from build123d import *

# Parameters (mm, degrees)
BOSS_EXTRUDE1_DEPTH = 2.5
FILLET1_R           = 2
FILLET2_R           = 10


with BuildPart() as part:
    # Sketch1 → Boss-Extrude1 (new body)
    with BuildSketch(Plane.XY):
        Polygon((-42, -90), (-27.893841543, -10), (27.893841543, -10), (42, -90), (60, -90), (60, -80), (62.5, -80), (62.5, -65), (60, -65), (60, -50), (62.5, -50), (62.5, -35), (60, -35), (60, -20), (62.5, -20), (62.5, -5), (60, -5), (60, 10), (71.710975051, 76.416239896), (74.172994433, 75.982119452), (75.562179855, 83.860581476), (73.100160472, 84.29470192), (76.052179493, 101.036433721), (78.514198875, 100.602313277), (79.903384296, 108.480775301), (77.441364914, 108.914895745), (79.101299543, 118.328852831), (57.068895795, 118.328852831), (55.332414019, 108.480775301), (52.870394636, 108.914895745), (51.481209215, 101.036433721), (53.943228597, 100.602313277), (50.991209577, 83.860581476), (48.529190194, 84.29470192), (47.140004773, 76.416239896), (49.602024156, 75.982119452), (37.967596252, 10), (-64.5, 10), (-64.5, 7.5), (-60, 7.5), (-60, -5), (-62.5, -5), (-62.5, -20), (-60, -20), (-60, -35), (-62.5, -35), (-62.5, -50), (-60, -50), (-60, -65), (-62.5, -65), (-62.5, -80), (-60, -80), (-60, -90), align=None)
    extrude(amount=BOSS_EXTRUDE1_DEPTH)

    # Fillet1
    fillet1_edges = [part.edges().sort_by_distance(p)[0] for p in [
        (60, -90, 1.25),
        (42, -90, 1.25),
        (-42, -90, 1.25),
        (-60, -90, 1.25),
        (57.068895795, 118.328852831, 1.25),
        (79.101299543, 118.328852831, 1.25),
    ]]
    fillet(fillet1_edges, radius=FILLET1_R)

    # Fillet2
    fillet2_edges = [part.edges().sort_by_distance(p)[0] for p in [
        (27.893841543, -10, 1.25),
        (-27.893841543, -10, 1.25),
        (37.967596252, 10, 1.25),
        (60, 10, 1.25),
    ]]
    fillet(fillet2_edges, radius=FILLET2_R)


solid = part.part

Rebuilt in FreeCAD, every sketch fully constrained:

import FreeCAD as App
import Part
import Sketcher

V = App.Vector
Q = App.Units.Quantity


def edges_at(feature, points):
    """Names of the edges that pass closest to the given points."""
    edges = feature.Shape.Edges
    near = lambda p: min(range(len(edges)), key=lambda i: edges[i].distToShape(Part.Vertex(*p))[0])
    return sorted({f"Edge{near(p) + 1}" for p in points})

doc = App.newDocument("Part")
params = doc.addObject("Spreadsheet::Sheet", "Params")
for row, (alias, value) in enumerate([
    ("sketch1_width", "18 mm"),
    ("sketch1_height", "10 mm"),
    ("sketch1_height2", "15 mm"),
    ("sketch1_length", "8 mm"),
    ("sketch1_length2", "17 mm"),
    ("pad1_length", "2.5 mm"),
    ("fillet_radius", "2 mm"),
    ("fillet2_radius", "10 mm"),
], start=1):
    params.set(f"A{row}", alias)
    params.set(f"B{row}", "=" + value)
    params.setAlias(f"B{row}", alias)

body = doc.addObject("PartDesign::Body", "Body")

sketch1 = doc.addObject("Sketcher::SketchObject", "Sketch")
body.addObject(sketch1)
sketch1.AttachmentSupport = (doc.XY_Plane, [""])
sketch1.MapMode = "FlatFace"
sketch1.addGeometry([
    Part.LineSegment(V(-42, -90, 0), V(-27.9, -10, 0)),
    Part.LineSegment(V(-27.9, -10, 0), V(27.9, -10, 0)),
    Part.LineSegment(V(27.9, -10, 0), V(42, -90, 0)),
    Part.LineSegment(V(42, -90, 0), V(60, -90, 0)),
    Part.LineSegment(V(60, -90, 0), V(60, -80, 0)),
    Part.LineSegment(V(60, -80, 0), V(62.5, -80, 0)),
    Part.LineSegment(V(62.5, -80, 0), V(62.5, -65, 0)),
    Part.LineSegment(V(62.5, -65, 0), V(60, -65, 0)),
    Part.LineSegment(V(60, -65, 0), V(60, -50, 0)),
    Part.LineSegment(V(60, -50, 0), V(62.5, -50, 0)),
    Part.LineSegment(V(62.5, -50, 0), V(62.5, -35, 0)),
    Part.LineSegment(V(62.5, -35, 0), V(60, -35, 0)),
    Part.LineSegment(V(60, -35, 0), V(60, -20, 0)),
    Part.LineSegment(V(60, -20, 0), V(62.5, -20, 0)),
    Part.LineSegment(V(62.5, -20, 0), V(62.5, -5, 0)),
    Part.LineSegment(V(62.5, -5, 0), V(60, -5, 0)),
    Part.LineSegment(V(60, -5, 0), V(60, 10, 0)),
    Part.LineSegment(V(60, 10, 0), V(71.7, 76.4, 0)),
    Part.LineSegment(V(71.7, 76.4, 0), V(74.2, 76, 0)),
    Part.LineSegment(V(74.2, 76, 0), V(75.6, 83.9, 0)),
    Part.LineSegment(V(75.6, 83.9, 0), V(73.1, 84.3, 0)),
    Part.LineSegment(V(73.1, 84.3, 0), V(76.1, 101, 0)),
    Part.LineSegment(V(76.1, 101, 0), V(78.5, 100.6, 0)),
    Part.LineSegment(V(78.5, 100.6, 0), V(79.9, 108.5, 0)),
    Part.LineSegment(V(79.9, 108.5, 0), V(77.4, 108.9, 0)),
    Part.LineSegment(V(77.4, 108.9, 0), V(79.1, 118.3, 0)),
    Part.LineSegment(V(79.1, 118.3, 0), V(57.1, 118.3, 0)),
    Part.LineSegment(V(57.1, 118.3, 0), V(55.3, 108.5, 0)),
    Part.LineSegment(V(55.3, 108.5, 0), V(52.9, 108.9, 0)),
    Part.LineSegment(V(52.9, 108.9, 0), V(51.5, 101, 0)),
    Part.LineSegment(V(51.5, 101, 0), V(53.9, 100.6, 0)),
    Part.LineSegment(V(53.9, 100.6, 0), V(51, 83.9, 0)),
    Part.LineSegment(V(51, 83.9, 0), V(48.5, 84.3, 0)),
    Part.LineSegment(V(48.5, 84.3, 0), V(47.1, 76.4, 0)),
    Part.LineSegment(V(47.1, 76.4, 0), V(49.6, 76, 0)),
    Part.LineSegment(V(49.6, 76, 0), V(38, 10, 0)),
    Part.LineSegment(V(38, 10, 0), V(-64.5, 10, 0)),
    Part.LineSegment(V(-64.5, 10, 0), V(-64.5, 7.5, 0)),
    Part.LineSegment(V(-64.5, 7.5, 0), V(-60, 7.5, 0)),
    Part.LineSegment(V(-60, 7.5, 0), V(-60, -5, 0)),
    Part.LineSegment(V(-60, -5, 0), V(-62.5, -5, 0)),
    Part.LineSegment(V(-62.5, -5, 0), V(-62.5, -20, 0)),
    Part.LineSegment(V(-62.5, -20, 0), V(-60, -20, 0)),
    Part.LineSegment(V(-60, -20, 0), V(-60, -35, 0)),
    Part.LineSegment(V(-60, -35, 0), V(-62.5, -35, 0)),
    Part.LineSegment(V(-62.5, -35, 0), V(-62.5, -50, 0)),
    Part.LineSegment(V(-62.5, -50, 0), V(-60, -50, 0)),
    Part.LineSegment(V(-60, -50, 0), V(-60, -65, 0)),
    Part.LineSegment(V(-60, -65, 0), V(-62.5, -65, 0)),
    Part.LineSegment(V(-62.5, -65, 0), V(-62.5, -80, 0)),
    Part.LineSegment(V(-62.5, -80, 0), V(-60, -80, 0)),
    Part.LineSegment(V(-60, -80, 0), V(-60, -90, 0)),
    Part.LineSegment(V(-60, -90, 0), V(-42, -90, 0)),
], False)
sketch1.addConstraint([
    Sketcher.Constraint("Coincident", 0, 2, 1, 1),
    Sketcher.Constraint("Coincident", 1, 2, 2, 1),
    Sketcher.Constraint("Coincident", 2, 2, 3, 1),
    Sketcher.Constraint("Coincident", 3, 2, 4, 1),
    Sketcher.Constraint("Coincident", 4, 2, 5, 1),
    Sketcher.Constraint("Coincident", 5, 2, 6, 1),
    Sketcher.Constraint("Coincident", 6, 2, 7, 1),
    Sketcher.Constraint("Coincident", 7, 2, 8, 1),
    Sketcher.Constraint("Coincident", 8, 2, 9, 1),
    Sketcher.Constraint("Coincident", 9, 2, 10, 1),
    Sketcher.Constraint("Coincident", 10, 2, 11, 1),
    Sketcher.Constraint("Coincident", 11, 2, 12, 1),
    Sketcher.Constraint("Coincident", 12, 2, 13, 1),
    Sketcher.Constraint("Coincident", 13, 2, 14, 1),
    Sketcher.Constraint("Coincident", 14, 2, 15, 1),
    Sketcher.Constraint("Coincident", 15, 2, 16, 1),
    Sketcher.Constraint("Coincident", 16, 2, 17, 1),
    Sketcher.Constraint("Coincident", 17, 2, 18, 1),
    Sketcher.Constraint("Coincident", 18, 2, 19, 1),
    Sketcher.Constraint("Coincident", 19, 2, 20, 1),
    Sketcher.Constraint("Coincident", 20, 2, 21, 1),
    Sketcher.Constraint("Coincident", 21, 2, 22, 1),
    Sketcher.Constraint("Coincident", 22, 2, 23, 1),
    Sketcher.Constraint("Coincident", 23, 2, 24, 1),
    Sketcher.Constraint("Coincident", 24, 2, 25, 1),
    Sketcher.Constraint("Coincident", 25, 2, 26, 1),
    Sketcher.Constraint("Coincident", 26, 2, 27, 1),
    Sketcher.Constraint("Coincident", 27, 2, 28, 1),
    Sketcher.Constraint("Coincident", 28, 2, 29, 1),
    Sketcher.Constraint("Coincident", 29, 2, 30, 1),
    Sketcher.Constraint("Coincident", 30, 2, 31, 1),
    Sketcher.Constraint("Coincident", 31, 2, 32, 1),
    Sketcher.Constraint("Coincident", 32, 2, 33, 1),
    Sketcher.Constraint("Coincident", 33, 2, 34, 1),
    Sketcher.Constraint("Coincident", 34, 2, 35, 1),
    Sketcher.Constraint("Coincident", 35, 2, 36, 1),
    Sketcher.Constraint("Coincident", 36, 2, 37, 1),
    Sketcher.Constraint("Coincident", 37, 2, 38, 1),
    Sketcher.Constraint("Coincident", 38, 2, 39, 1),
    Sketcher.Constraint("Coincident", 39, 2, 40, 1),
    Sketcher.Constraint("Coincident", 40, 2, 41, 1),
    Sketcher.Constraint("Coincident", 41, 2, 42, 1),
    Sketcher.Constraint("Coincident", 42, 2, 43, 1),
    Sketcher.Constraint("Coincident", 43, 2, 44, 1),
    Sketcher.Constraint("Coincident", 44, 2, 45, 1),
    Sketcher.Constraint("Coincident", 45, 2, 46, 1),
    Sketcher.Constraint("Coincident", 46, 2, 47, 1),
    Sketcher.Constraint("Coincident", 47, 2, 48, 1),
    Sketcher.Constraint("Coincident", 48, 2, 49, 1),
    Sketcher.Constraint("Coincident", 49, 2, 50, 1),
    Sketcher.Constraint("Coincident", 50, 2, 51, 1),
    Sketcher.Constraint("Coincident", 51, 2, 52, 1),
    Sketcher.Constraint("Coincident", 52, 2, 0, 1),
    Sketcher.Constraint("Horizontal", 1),
    Sketcher.Constraint("Horizontal", 3),
    Sketcher.Constraint("Vertical", 4),
    Sketcher.Constraint("Horizontal", 5),
    Sketcher.Constraint("Vertical", 6),
    Sketcher.Constraint("Horizontal", 7),
    Sketcher.Constraint("Vertical", 8),
    Sketcher.Constraint("Horizontal", 9),
    Sketcher.Constraint("Vertical", 10),
    Sketcher.Constraint("Horizontal", 11),
    Sketcher.Constraint("Vertical", 12),
    Sketcher.Constraint("Horizontal", 13),
    Sketcher.Constraint("Vertical", 14),
    Sketcher.Constraint("Horizontal", 15),
    Sketcher.Constraint("Vertical", 16),
    Sketcher.Constraint("Horizontal", 26),
    Sketcher.Constraint("Horizontal", 36),
    Sketcher.Constraint("Vertical", 37),
    Sketcher.Constraint("Horizontal", 38),
    Sketcher.Constraint("Vertical", 39),
    Sketcher.Constraint("Horizontal", 40),
    Sketcher.Constraint("Vertical", 41),
    Sketcher.Constraint("Horizontal", 42),
    Sketcher.Constraint("Vertical", 43),
    Sketcher.Constraint("Horizontal", 44),
    Sketcher.Constraint("Vertical", 45),
    Sketcher.Constraint("Horizontal", 46),
    Sketcher.Constraint("Vertical", 47),
    Sketcher.Constraint("Horizontal", 48),
    Sketcher.Constraint("Vertical", 49),
    Sketcher.Constraint("Horizontal", 50),
    Sketcher.Constraint("Vertical", 51),
    Sketcher.Constraint("Horizontal", 52),
    Sketcher.Constraint("Symmetric", 15, 2, 39, 2, -2),
    Sketcher.Constraint("Symmetric", 13, 2, 41, 2, -2),
    Sketcher.Constraint("Symmetric", 11, 2, 43, 2, -2),
    Sketcher.Constraint("Symmetric", 9, 2, 45, 2, -2),
    Sketcher.Constraint("Symmetric", 7, 2, 47, 2, -2),
    Sketcher.Constraint("Symmetric", 5, 2, 49, 2, -2),
    Sketcher.Constraint("Symmetric", 3, 2, 51, 2, -2),
    Sketcher.Constraint("Parallel", 0, 17),
    Sketcher.Constraint("Perpendicular", 17, 18),
    Sketcher.Constraint("Perpendicular", 18, 19),
    Sketcher.Constraint("Perpendicular", 19, 20),
    Sketcher.Constraint("Perpendicular", 20, 21),
    Sketcher.Constraint("Perpendicular", 21, 22),
    Sketcher.Constraint("Perpendicular", 22, 23),
    Sketcher.Constraint("Perpendicular", 23, 24),
    Sketcher.Constraint("Perpendicular", 24, 25),
    Sketcher.Constraint("Parallel", 25, 27),
    Sketcher.Constraint("Perpendicular", 27, 28),
    Sketcher.Constraint("Perpendicular", 28, 29),
    Sketcher.Constraint("Perpendicular", 29, 30),
    Sketcher.Constraint("Perpendicular", 30, 31),
    Sketcher.Constraint("Perpendicular", 31, 32),
    Sketcher.Constraint("Perpendicular", 32, 33),
    Sketcher.Constraint("Perpendicular", 33, 34),
    Sketcher.Constraint("Perpendicular", 34, 35),
    Sketcher.Constraint("Horizontal", 23, 2, 27, 2),
    Sketcher.Constraint("Horizontal", 24, 2, 28, 2),
    Sketcher.Constraint("Horizontal", 21, 2, 29, 2),
    Sketcher.Constraint("Horizontal", 22, 2, 30, 2),
    Sketcher.Constraint("Horizontal", 19, 2, 31, 2),
    Sketcher.Constraint("Horizontal", 20, 2, 32, 2),
    Sketcher.Constraint("Horizontal", 17, 2, 33, 2),
    Sketcher.Constraint("Horizontal", 18, 2, 34, 2),
    Sketcher.Constraint("Horizontal", 16, 2, 35, 2),
    Sketcher.Constraint("Vertical", 4, 2, 7, 2),
    Sketcher.Constraint("Vertical", 6, 2, 9, 2),
    Sketcher.Constraint("Vertical", 8, 2, 11, 2),
    Sketcher.Constraint("Vertical", 10, 2, 13, 2),
    Sketcher.Constraint("Vertical", 12, 2, 15, 2),
    Sketcher.Constraint("Equal", 3, 52),
    Sketcher.Constraint("Equal", 6, 8),
    Sketcher.Constraint("Equal", 8, 10),
    Sketcher.Constraint("Equal", 10, 12),
    Sketcher.Constraint("Equal", 12, 14),
    Sketcher.Constraint("Equal", 14, 16),
    Sketcher.Constraint("Equal", 50, 37),
    Sketcher.Constraint("Equal", 0, 2),
    Sketcher.Constraint("Equal", 18, 20),
    Sketcher.Constraint("Equal", 20, 22),
    Sketcher.Constraint("Equal", 19, 23),
    Sketcher.Constraint("Equal", 22, 24),
    Sketcher.Constraint("DistanceX", 3, 1, 3, 2, Q("18 mm")),
    Sketcher.Constraint("DistanceY", 4, 1, 4, 2, Q("10 mm")),
    Sketcher.Constraint("DistanceY", 6, 1, 6, 2, Q("15 mm")),
    Sketcher.Constraint("Angle", 0, Q("80 deg")),
    Sketcher.Constraint("Distance", 19, Q("8 mm")),
    Sketcher.Constraint("Distance", 21, Q("17 mm")),
    Sketcher.Constraint("Distance", 27, Q("10 mm")),
    Sketcher.Constraint("Distance", 35, Q("67 mm")),
    Sketcher.Constraint("DistanceX", 5, 1, 5, 2, Q("2.5 mm")),
    Sketcher.Constraint("DistanceX", 38, 1, 38, 2, Q("4.5 mm")),
    Sketcher.Constraint("DistanceY", 0, 2, -1, 1, Q("10 mm")),
    Sketcher.Constraint("DistanceX", -1, 1, 2, 2, Q("42 mm")),
    Sketcher.Constraint("DistanceY", 2, 2, -1, 1, Q("90 mm")),
    Sketcher.Constraint("Distance", 18, Q("2.5 mm")),
    Sketcher.Constraint("DistanceX", 26, 2, 26, 1, Q("22.032404 mm")),
])
sketch1.setExpression("Constraints[137]", "Params.sketch1_width")
sketch1.setExpression("Constraints[138]", "Params.sketch1_height")
sketch1.setExpression("Constraints[139]", "Params.sketch1_height2")
sketch1.setExpression("Constraints[141]", "Params.sketch1_length")
sketch1.setExpression("Constraints[142]", "Params.sketch1_length2")
pad1 = doc.addObject("PartDesign::Pad", "Pad")
body.addObject(pad1)
pad1.Profile = sketch1
pad1.setExpression("Length", "Params.pad1_length")
doc.recompute()

fillet = doc.addObject("PartDesign::Fillet", "Fillet")
body.addObject(fillet)
fillet.Base = (pad1, edges_at(pad1, [
    (60, -90, 1.25),
    (42, -90, 1.25),
    (-42, -90, 1.25),
    (-60, -90, 1.25),
    (57.069, 118.329, 1.25),
    (79.101, 118.329, 1.25),
]))
fillet.setExpression("Radius", "Params.fillet_radius")
doc.recompute()

fillet2 = doc.addObject("PartDesign::Fillet", "Fillet001")
body.addObject(fillet2)
fillet2.Base = (fillet, edges_at(fillet, [
    (27.894, -10, 1.25),
    (-27.894, -10, 1.25),
    (37.968, 10, 1.25),
    (60, 10, 1.25),
]))
fillet2.setExpression("Radius", "Params.fillet2_radius")

doc.recompute()
